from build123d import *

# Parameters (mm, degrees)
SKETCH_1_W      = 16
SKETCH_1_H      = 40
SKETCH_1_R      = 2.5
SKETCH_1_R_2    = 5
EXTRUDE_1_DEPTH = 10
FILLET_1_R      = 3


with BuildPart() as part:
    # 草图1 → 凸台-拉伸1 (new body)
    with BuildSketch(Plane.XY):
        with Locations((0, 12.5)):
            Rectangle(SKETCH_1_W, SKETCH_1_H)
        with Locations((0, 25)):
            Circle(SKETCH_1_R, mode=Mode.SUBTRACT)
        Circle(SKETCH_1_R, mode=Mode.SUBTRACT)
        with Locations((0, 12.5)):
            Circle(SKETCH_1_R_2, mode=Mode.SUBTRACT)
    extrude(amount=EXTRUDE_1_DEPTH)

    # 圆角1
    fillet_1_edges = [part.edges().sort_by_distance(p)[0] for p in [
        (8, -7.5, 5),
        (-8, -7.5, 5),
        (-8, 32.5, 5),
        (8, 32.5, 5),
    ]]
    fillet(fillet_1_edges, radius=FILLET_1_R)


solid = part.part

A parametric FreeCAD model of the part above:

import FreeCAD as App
import Part
import Sketcher

V = App.Vector
Q = App.Units.Quantity


def edges_at(feature, points):
    """Names of the edges that pass closest to the given points."""
    edges = feature.Shape.Edges
    near = lambda p: min(range(len(edges)), key=lambda i: edges[i].distToShape(Part.Vertex(*p))[0])
    return sorted({f"Edge{near(p) + 1}" for p in points})

doc = App.newDocument("Part")
params = doc.addObject("Spreadsheet::Sheet", "Params")
for row, (alias, value) in enumerate([
    ("sketch1_diameter", "5 mm"),
    ("sketch1_diameter2", "10 mm"),
    ("sketch1_width", "16 mm"),
    ("sketch1_height", "40 mm"),
    ("pad1_length", "10 mm"),
    ("fillet_radius", "3 mm"),
], start=1):
    params.set(f"A{row}", alias)
    params.set(f"B{row}", "=" + value)
    params.setAlias(f"B{row}", alias)

body = doc.addObject("PartDesign::Body", "Body")

# Sketch on XY plane
sketch1 = doc.addObject("Sketcher::SketchObject", "Sketch")
body.addObject(sketch1)
sketch1.AttachmentSupport = (doc.XY_Plane, [""])
sketch1.MapMode = "FlatFace"
sketch1.addGeometry([
    Part.LineSegment(V(-8, 32.5, 0), V(-8, -7.5, 0)),  # 0
    Part.LineSegment(V(-8, -7.5, 0), V(8, -7.5, 0)),  # 1
    Part.LineSegment(V(8, -7.5, 0), V(8, 32.5, 0)),  # 2
    Part.LineSegment(V(8, 32.5, 0), V(-8, 32.5, 0)),  # 3
    Part.Circle(V(0, 0, 0), V(0, 0, 1), 2.5),  # 4
    Part.Circle(V(0, 12.5, 0), V(0, 0, 1), 5),  # 5
    Part.Circle(V(0, 25, 0), V(0, 0, 1), 2.5),  # 6
], False)
sketch1.addConstraint([
    Sketcher.Constraint("Coincident", 0, 2, 1, 1),
    Sketcher.Constraint("Coincident", 1, 2, 2, 1),
    Sketcher.Constraint("Coincident", 2, 2, 3, 1),
    Sketcher.Constraint("Coincident", 3, 2, 0, 1),
    Sketcher.Constraint("Vertical", 0),
    Sketcher.Constraint("Horizontal", 1),
    Sketcher.Constraint("Vertical", 2),
    Sketcher.Constraint("Horizontal", 3),
    Sketcher.Constraint("Coincident", 4, 3, -1, 1),
    Sketcher.Constraint("Equal", 4, 6),
    Sketcher.Constraint("PointOnObject", 5, 3, -2),
    Sketcher.Constraint("PointOnObject", 6, 3, -2),
    Sketcher.Constraint("Diameter", 4, Q("5 mm")),
    Sketcher.Constraint("Diameter", 5, Q("10 mm")),
    Sketcher.Constraint("DistanceX", 1, 1, 1, 2, Q("16 mm")),
    Sketcher.Constraint("DistanceY", 0, 2, 0, 1, Q("40 mm")),
    Sketcher.Constraint("DistanceY", -1, 1, 6, 3, Q("25 mm")),
    Sketcher.Constraint("DistanceX", 0, 2, -1, 1, Q("8 mm")),
    Sketcher.Constraint("DistanceY", 0, 2, 5, 3, Q("20 mm")),
    Sketcher.Constraint("DistanceY", -1, 1, 5, 3, Q("12.5 mm")),
])
sketch1.setExpression("Constraints[12]", "Params.sketch1_diameter")
sketch1.setExpression("Constraints[13]", "Params.sketch1_diameter2")
sketch1.setExpression("Constraints[14]", "Params.sketch1_width")
sketch1.setExpression("Constraints[15]", "Params.sketch1_height")
pad1 = doc.addObject("PartDesign::Pad", "Pad")
body.addObject(pad1)
pad1.Profile = sketch1
pad1.setExpression("Length", "Params.pad1_length")
doc.recompute()

fillet = doc.addObject("PartDesign::Fillet", "Fillet")
body.addObject(fillet)
fillet.Base = (pad1, edges_at(pad1, [
    (8, -7.5, 5),
    (-8, -7.5, 5),
    (-8, 32.5, 5),
    (8, 32.5, 5),
]))
fillet.setExpression("Radius", "Params.fillet_radius")

doc.recompute()
